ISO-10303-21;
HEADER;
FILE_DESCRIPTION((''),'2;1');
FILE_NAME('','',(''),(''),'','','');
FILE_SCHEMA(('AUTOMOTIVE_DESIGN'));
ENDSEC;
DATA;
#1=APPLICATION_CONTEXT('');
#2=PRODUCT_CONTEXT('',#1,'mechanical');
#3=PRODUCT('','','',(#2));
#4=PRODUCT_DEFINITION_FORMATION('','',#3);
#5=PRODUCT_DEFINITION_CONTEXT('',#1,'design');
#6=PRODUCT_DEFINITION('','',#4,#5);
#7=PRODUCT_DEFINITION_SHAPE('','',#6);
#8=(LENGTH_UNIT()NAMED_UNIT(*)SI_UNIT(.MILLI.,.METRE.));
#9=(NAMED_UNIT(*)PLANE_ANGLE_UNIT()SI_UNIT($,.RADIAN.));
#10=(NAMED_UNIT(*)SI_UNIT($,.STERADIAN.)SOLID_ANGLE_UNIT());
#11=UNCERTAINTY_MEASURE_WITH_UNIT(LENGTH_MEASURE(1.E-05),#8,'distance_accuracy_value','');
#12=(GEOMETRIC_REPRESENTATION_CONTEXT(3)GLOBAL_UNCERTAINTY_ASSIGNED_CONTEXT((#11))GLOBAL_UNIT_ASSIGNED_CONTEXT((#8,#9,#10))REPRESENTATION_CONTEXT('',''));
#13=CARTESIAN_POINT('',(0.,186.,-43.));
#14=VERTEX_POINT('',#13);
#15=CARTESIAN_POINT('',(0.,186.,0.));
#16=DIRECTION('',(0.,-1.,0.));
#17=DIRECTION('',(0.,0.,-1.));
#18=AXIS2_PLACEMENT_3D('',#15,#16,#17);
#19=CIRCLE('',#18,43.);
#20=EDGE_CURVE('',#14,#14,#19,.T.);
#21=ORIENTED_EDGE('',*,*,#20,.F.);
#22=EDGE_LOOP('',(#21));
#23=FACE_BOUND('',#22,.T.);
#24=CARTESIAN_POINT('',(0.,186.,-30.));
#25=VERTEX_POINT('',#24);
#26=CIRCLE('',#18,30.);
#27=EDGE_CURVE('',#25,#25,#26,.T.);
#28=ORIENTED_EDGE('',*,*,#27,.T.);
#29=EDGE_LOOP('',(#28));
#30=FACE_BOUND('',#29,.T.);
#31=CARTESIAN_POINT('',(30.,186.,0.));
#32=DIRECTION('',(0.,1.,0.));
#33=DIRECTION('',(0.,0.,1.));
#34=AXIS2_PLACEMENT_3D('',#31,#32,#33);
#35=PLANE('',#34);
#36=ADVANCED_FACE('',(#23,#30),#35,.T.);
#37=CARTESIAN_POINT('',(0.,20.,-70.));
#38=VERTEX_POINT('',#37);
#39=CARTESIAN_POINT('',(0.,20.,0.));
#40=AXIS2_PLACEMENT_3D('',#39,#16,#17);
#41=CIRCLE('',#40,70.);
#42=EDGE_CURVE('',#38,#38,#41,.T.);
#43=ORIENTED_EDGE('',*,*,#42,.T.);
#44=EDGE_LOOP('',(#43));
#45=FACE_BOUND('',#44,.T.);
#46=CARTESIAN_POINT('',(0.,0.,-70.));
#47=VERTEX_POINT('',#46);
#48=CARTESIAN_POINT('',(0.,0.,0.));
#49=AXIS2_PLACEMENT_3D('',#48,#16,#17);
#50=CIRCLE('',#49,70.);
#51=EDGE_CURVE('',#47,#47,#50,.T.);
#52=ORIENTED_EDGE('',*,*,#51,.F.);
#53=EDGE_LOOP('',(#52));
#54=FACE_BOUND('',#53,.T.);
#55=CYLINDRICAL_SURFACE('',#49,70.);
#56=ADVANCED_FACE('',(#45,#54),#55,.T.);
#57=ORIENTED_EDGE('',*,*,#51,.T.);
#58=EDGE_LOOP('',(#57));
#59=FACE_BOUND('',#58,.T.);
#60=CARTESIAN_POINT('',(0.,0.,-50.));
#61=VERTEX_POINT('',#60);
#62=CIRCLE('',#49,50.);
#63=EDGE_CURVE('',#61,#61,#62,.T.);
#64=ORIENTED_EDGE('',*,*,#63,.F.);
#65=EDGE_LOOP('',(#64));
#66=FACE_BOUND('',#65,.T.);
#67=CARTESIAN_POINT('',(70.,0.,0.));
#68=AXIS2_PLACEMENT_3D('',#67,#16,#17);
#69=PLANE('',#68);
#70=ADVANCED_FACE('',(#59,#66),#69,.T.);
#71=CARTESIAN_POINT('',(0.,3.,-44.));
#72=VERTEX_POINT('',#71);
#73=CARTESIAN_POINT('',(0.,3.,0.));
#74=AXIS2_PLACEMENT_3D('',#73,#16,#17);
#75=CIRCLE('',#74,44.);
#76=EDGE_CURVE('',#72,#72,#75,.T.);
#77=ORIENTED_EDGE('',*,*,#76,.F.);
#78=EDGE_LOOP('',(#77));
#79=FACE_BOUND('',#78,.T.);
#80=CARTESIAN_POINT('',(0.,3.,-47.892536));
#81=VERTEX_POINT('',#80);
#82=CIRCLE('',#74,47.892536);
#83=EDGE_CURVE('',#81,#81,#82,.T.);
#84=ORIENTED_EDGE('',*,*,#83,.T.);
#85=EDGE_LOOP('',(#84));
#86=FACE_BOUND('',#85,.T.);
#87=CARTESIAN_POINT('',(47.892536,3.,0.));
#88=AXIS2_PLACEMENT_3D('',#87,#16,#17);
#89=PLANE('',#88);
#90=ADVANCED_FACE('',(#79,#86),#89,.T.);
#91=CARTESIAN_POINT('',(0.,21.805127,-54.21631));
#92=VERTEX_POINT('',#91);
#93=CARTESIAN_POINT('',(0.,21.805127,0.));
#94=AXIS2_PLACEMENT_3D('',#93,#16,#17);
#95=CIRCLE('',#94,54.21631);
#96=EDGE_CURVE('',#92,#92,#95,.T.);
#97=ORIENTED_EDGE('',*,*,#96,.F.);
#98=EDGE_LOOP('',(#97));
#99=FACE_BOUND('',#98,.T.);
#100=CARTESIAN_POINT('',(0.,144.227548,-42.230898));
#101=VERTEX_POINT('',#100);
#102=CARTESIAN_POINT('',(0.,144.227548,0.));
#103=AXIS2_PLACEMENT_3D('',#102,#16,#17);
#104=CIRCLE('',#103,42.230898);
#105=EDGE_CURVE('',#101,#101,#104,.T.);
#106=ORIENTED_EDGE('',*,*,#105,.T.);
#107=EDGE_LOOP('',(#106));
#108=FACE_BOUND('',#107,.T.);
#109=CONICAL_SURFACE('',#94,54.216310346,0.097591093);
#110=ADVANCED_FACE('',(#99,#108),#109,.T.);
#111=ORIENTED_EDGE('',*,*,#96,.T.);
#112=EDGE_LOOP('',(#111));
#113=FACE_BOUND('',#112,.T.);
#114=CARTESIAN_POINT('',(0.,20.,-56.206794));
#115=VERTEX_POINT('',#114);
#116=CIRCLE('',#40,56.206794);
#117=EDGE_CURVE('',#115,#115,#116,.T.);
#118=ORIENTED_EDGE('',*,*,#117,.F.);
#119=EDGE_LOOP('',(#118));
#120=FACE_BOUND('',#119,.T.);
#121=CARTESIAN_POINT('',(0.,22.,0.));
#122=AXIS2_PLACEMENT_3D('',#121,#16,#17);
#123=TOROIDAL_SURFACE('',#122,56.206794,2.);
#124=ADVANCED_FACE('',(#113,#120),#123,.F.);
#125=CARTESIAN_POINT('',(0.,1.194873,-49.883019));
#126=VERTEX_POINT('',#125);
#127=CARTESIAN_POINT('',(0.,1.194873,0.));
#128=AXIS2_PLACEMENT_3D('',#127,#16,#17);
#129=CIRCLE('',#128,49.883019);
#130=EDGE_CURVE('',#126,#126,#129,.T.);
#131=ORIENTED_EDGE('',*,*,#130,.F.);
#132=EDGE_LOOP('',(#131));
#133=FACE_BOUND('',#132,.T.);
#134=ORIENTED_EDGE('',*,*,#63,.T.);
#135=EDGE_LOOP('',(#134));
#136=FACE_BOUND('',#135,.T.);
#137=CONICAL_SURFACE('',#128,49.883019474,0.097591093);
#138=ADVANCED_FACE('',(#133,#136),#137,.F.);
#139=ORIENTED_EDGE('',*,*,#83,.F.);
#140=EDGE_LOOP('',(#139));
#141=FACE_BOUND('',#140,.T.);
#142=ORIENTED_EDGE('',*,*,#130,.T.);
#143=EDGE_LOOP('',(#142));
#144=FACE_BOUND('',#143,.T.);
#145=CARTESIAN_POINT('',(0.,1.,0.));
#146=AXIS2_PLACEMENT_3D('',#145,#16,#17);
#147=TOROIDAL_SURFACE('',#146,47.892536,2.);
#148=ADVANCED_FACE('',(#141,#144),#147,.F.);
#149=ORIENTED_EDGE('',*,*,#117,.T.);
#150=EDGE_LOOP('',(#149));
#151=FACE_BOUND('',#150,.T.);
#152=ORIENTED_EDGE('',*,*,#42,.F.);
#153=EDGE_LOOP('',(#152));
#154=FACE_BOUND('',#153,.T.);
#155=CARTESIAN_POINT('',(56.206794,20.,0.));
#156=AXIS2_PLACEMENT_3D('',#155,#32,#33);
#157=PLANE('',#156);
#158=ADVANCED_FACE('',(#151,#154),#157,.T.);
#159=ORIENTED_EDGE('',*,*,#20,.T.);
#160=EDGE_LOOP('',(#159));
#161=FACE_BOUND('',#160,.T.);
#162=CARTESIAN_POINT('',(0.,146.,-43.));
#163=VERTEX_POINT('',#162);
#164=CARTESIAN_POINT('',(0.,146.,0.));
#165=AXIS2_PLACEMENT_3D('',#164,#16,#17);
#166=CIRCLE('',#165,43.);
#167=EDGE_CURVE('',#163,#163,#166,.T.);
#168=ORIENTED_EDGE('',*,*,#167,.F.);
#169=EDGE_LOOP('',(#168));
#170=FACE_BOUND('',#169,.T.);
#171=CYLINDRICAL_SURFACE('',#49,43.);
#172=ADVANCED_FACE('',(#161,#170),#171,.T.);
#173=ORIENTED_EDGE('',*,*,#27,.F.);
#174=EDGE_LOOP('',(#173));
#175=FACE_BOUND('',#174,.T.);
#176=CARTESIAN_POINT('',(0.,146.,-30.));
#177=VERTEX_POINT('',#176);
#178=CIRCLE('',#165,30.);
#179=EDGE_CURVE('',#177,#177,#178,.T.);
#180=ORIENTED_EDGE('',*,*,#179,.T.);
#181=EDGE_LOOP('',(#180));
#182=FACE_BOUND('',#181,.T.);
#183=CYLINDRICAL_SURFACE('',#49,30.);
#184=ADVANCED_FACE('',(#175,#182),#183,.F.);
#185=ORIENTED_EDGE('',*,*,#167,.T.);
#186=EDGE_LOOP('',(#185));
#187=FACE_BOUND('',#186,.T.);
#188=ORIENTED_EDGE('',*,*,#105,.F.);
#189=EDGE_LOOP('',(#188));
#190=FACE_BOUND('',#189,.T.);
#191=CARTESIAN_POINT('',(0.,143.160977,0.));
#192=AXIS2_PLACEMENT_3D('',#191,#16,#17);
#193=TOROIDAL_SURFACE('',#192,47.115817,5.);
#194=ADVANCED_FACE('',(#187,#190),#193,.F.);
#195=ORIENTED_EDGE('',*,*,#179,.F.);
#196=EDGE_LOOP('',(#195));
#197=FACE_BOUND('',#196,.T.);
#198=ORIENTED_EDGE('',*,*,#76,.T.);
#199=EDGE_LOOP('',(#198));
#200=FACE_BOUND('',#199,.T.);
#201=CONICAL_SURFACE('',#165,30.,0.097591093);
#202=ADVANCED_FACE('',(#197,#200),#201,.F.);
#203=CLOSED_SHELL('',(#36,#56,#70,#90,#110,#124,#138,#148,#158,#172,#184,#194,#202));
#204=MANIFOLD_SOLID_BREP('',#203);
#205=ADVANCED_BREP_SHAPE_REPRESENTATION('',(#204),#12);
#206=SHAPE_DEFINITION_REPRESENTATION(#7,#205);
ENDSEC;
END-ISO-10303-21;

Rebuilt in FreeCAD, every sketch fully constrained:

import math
import FreeCAD as App
import Part
import Sketcher

doc = App.newDocument("Part")
body = doc.addObject("PartDesign::Body", "Body")

# Sketch on XY plane
sketch1 = body.newObject("Sketcher::SketchObject", "Sketch")
sketch1.AttachmentSupport = (doc.getObject("XY_Plane"), [""])
sketch1.MapMode = "FlatFace"
sketch1.addGeometry([
    Part.LineSegment(App.Vector(43, 186, 0), App.Vector(30, 186, 0)),  # 0
    Part.LineSegment(App.Vector(30, 186, 0), App.Vector(30, 146, 0)),  # 1
    Part.LineSegment(App.Vector(30, 146, 0), App.Vector(44, 3, 0)),  # 2
    Part.LineSegment(App.Vector(44, 3, 0), App.Vector(47.892536, 3, 0)),  # 3
    Part.ArcOfCircle(Part.Circle(App.Vector(47.892536, 1, 0), App.Vector(0, 0, 1), 2), math.radians(5.591558), math.radians(90)),  # 4
    Part.LineSegment(App.Vector(49.883019, 1.194873, 0), App.Vector(50, 0, 0)),  # 5
    Part.LineSegment(App.Vector(50, 0, 0), App.Vector(70, 0, 0)),  # 6
    Part.LineSegment(App.Vector(70, 0, 0), App.Vector(70, 20, 0)),  # 7
    Part.LineSegment(App.Vector(70, 20, 0), App.Vector(56.206794, 20, 0)),  # 8
    Part.ArcOfCircle(Part.Circle(App.Vector(56.206794, 22, 0), App.Vector(0, 0, 1), 2), math.radians(-174.408442), math.radians(-90)),  # 9
    Part.LineSegment(App.Vector(54.21631, 21.805127, 0), App.Vector(42.230898, 144.227548, 0)),  # 10
    Part.ArcOfCircle(Part.Circle(App.Vector(47.115817, 143.160977, 0), App.Vector(0, 0, 1), 5), math.radians(145.402718), math.radians(167.683345)),  # 11
    Part.LineSegment(App.Vector(43, 146, 0), App.Vector(43, 186, 0)),  # 12
], False)
sketch1.addConstraint([
    Sketcher.Constraint("Coincident", 0, 2, 1, 1),
    Sketcher.Constraint("Coincident", 1, 2, 2, 1),
    Sketcher.Constraint("Coincident", 2, 2, 3, 1),
    Sketcher.Constraint("Tangent", 3, 2, 4, 2),
    Sketcher.Constraint("Tangent", 4, 1, 5, 1),
    Sketcher.Constraint("Coincident", 5, 2, 6, 1),
    Sketcher.Constraint("Coincident", 6, 2, 7, 1),
    Sketcher.Constraint("Coincident", 7, 2, 8, 1),
    Sketcher.Constraint("Tangent", 8, 2, 9, 2),
    Sketcher.Constraint("Tangent", 9, 1, 10, 1),
    Sketcher.Constraint("Coincident", 10, 2, 11, 2),
    Sketcher.Constraint("Coincident", 11, 1, 12, 1),
    Sketcher.Constraint("Coincident", 12, 2, 0, 1),
    Sketcher.Constraint("Horizontal", 0),
    Sketcher.Constraint("Vertical", 1),
    Sketcher.Constraint("Horizontal", 3),
    Sketcher.Constraint("Horizontal", 6),
    Sketcher.Constraint("Vertical", 7),
    Sketcher.Constraint("Horizontal", 8),
    Sketcher.Constraint("Vertical", 12),
    Sketcher.Constraint("Equal", 4, 9),
    Sketcher.Constraint("PointOnObject", 5, 2, -1),
    Sketcher.Constraint("Parallel", 2, 5),
    Sketcher.Constraint("Parallel", 5, 10),
    Sketcher.Constraint("Horizontal", 1, 2, 11, 1),
    Sketcher.Constraint("Equal", 6, 7),
    Sketcher.Constraint("Radius", 4, 2.0),
    Sketcher.Constraint("Radius", 11, 5.0),
    Sketcher.Constraint("DistanceX", 0, 2, 0, 1, 13.0),
    Sketcher.Constraint("DistanceX", 6, 1, 6, 2, 20.0),
    Sketcher.Constraint("DistanceY", 1, 2, 1, 1, 40.0),
    Sketcher.Constraint("DistanceY", -1, 1, 4, 3, 1.0),
    Sketcher.Constraint("DistanceX", -1, 1, 0, 2, 30.0),
    Sketcher.Constraint("DistanceY", -1, 1, 0, 2, 186.0),
    Sketcher.Constraint("DistanceX", -1, 1, 2, 2, 44.0),
    Sketcher.Constraint("DistanceX", -1, 1, 5, 2, 50.0),
    Sketcher.Constraint("DistanceX", -1, 1, 10, 2, 42.230898),
    Sketcher.Constraint("Distance", 10, 123.00772),
])
revolution = body.newObject("PartDesign::Revolution", "Revolution")
revolution.Profile = sketch1
revolution.ReferenceAxis = (sketch1, ["V_Axis"])
revolution.Angle = 360

doc.recompute()
